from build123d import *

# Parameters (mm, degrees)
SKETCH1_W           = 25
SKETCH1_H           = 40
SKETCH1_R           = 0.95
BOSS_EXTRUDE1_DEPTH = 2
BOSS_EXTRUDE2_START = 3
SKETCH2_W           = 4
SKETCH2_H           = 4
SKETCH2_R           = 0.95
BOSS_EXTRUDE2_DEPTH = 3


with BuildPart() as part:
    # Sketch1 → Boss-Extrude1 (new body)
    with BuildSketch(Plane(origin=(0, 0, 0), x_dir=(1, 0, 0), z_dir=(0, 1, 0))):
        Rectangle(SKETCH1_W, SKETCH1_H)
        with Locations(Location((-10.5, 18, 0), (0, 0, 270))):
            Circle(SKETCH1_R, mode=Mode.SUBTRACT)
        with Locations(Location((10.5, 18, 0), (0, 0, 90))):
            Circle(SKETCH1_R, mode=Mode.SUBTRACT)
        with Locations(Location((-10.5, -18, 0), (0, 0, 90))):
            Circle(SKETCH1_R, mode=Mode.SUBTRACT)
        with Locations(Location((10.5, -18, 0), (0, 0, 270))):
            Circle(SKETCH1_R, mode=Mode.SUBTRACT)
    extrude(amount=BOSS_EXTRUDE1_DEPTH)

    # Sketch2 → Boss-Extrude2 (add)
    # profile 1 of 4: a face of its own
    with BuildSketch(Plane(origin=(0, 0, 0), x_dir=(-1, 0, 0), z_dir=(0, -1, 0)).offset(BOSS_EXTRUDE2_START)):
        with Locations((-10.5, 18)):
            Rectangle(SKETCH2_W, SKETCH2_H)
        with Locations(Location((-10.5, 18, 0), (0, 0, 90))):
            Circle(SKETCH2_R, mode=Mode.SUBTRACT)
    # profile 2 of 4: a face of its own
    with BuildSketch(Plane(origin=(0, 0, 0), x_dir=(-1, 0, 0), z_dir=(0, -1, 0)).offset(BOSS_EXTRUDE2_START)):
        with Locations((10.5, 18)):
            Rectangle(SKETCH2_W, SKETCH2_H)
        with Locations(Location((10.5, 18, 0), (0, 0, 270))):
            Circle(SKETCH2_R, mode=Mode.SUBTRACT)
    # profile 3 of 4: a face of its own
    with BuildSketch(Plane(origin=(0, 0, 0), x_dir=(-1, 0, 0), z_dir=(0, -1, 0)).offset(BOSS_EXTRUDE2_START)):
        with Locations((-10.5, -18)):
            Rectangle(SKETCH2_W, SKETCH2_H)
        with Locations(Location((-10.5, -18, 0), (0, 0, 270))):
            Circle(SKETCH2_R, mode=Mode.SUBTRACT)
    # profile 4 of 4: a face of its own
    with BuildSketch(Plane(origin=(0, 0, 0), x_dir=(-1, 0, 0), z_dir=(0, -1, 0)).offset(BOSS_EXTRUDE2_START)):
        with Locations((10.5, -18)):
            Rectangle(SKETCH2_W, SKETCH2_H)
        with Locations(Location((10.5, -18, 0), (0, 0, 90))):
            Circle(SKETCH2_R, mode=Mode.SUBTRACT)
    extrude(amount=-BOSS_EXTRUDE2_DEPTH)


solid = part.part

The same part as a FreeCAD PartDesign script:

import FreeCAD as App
import Part
import Sketcher


def add_polygon(sketch, points):
    """Adds a closed chain of lines whose ends are joined by coincident constraints."""
    first, n = sketch.GeometryCount, len(points)
    for a, b in zip(points, points[1:] + points[:1]):
        sketch.addGeometry(Part.LineSegment(App.Vector(*a, 0), App.Vector(*b, 0)), False)
    for i in range(n):
        sketch.addConstraint(Sketcher.Constraint("Coincident", first + i, 2, first + (i + 1) % n, 1))

doc = App.newDocument("Part")
params = doc.addObject("Spreadsheet::Sheet", "Params")
for row, (alias, value) in enumerate([
    ("sketch1_diameter", "1.9 mm"),
    ("sketch1_width", "25 mm"),
    ("sketch1_height", "40 mm"),
    ("pad1_length", "2 mm"),
    ("sketch2_diameter", "1.9 mm"),
    ("sketch2_width", "4 mm"),
    ("pad2_length", "3 mm"),
], start=1):
    params.set(f"A{row}", alias)
    params.set(f"B{row}", "=" + value)
    params.setAlias(f"B{row}", alias)

body = doc.addObject("PartDesign::Body", "Body")

# Sketch on XZ plane
sketch1 = body.newObject("Sketcher::SketchObject", "Sketch")
sketch1.AttachmentSupport = (doc.getObject("XZ_Plane"), [""])
sketch1.MapMode = "FlatFace"
add_polygon(sketch1, [(-12.5, -20), (-12.5, 20), (12.5, 20), (12.5, -20)])  # lines 0-3
sketch1.addGeometry(Part.Circle(App.Vector(-10.5, 18, 0), App.Vector(0, 0, 1), 0.9), False)  # 4
sketch1.addGeometry(Part.Circle(App.Vector(10.5, 18, 0), App.Vector(0, 0, 1), 0.9), False)  # 5
sketch1.addGeometry(Part.Circle(App.Vector(-10.5, -18, 0), App.Vector(0, 0, 1), 0.9), False)  # 6
sketch1.addGeometry(Part.Circle(App.Vector(10.5, -18, 0), App.Vector(0, 0, 1), 0.9), False)  # 7
sketch1.addConstraint(Sketcher.Constraint("Vertical", 0))
sketch1.addConstraint(Sketcher.Constraint("Horizontal", 1))
sketch1.addConstraint(Sketcher.Constraint("Vertical", 2))
sketch1.addConstraint(Sketcher.Constraint("Horizontal", 3))
sketch1.addConstraint(Sketcher.Constraint("Equal", 4, 5))
sketch1.addConstraint(Sketcher.Constraint("Equal", 5, 6))
sketch1.addConstraint(Sketcher.Constraint("Equal", 6, 7))
sketch1.addConstraint(Sketcher.Constraint("Symmetric", 5, 3, 6, 3, -1, 1))
sketch1.addConstraint(Sketcher.Constraint("Symmetric", 4, 3, 7, 3, -1, 1))
sketch1.addConstraint(Sketcher.Constraint("Symmetric", 0, 2, 2, 2, -1, 1))
sketch1.addConstraint(Sketcher.Constraint("Symmetric", 4, 3, 5, 3, -2))
sketch1.addConstraint(Sketcher.Constraint("Diameter", 4, 1.9))
sketch1.addConstraint(Sketcher.Constraint("DistanceX", 1, 1, 1, 2, 25.0))
sketch1.addConstraint(Sketcher.Constraint("DistanceY", 0, 1, 0, 2, 40.0))
sketch1.addConstraint(Sketcher.Constraint("DistanceY", -1, 1, 4, 3, 18.0))
sketch1.addConstraint(Sketcher.Constraint("DistanceX", 4, 3, 5, 3, 21.0))
sketch1.setExpression("Constraints[15]", "Params.sketch1_diameter")
sketch1.setExpression("Constraints[16]", "Params.sketch1_width")
sketch1.setExpression("Constraints[17]", "Params.sketch1_height")
pad1 = body.newObject("PartDesign::Pad", "Pad")
pad1.Profile = sketch1
pad1.setExpression("Length", "Params.pad1_length")
pad1.Reversed = True

# Sketch on XZ plane
sketch2 = body.newObject("Sketcher::SketchObject", "Sketch001")
sketch2.AttachmentSupport = (doc.getObject("XZ_Plane"), [""])
sketch2.MapMode = "FlatFace"
sketch2.AttachmentOffset = App.Placement(App.Vector(0, 0, 3), App.Rotation())
add_polygon(sketch2, [(12.5, -20), (12.5, -16), (8.5, -16), (8.5, -20)])  # lines 0-3
sketch2.addGeometry(Part.Circle(App.Vector(10.5, -18, 0), App.Vector(0, 0, 1), 0.9), False)  # 4
add_polygon(sketch2, [(-8.5, -20), (-8.5, -16), (-12.5, -16), (-12.5, -20)])  # lines 5-8
sketch2.addGeometry(Part.Circle(App.Vector(-10.5, -18, 0), App.Vector(0, 0, 1), 0.9), False)  # 9
add_polygon(sketch2, [(12.5, 16), (12.5, 20), (8.5, 20), (8.5, 16)])  # lines 10-13
sketch2.addGeometry(Part.Circle(App.Vector(10.5, 18, 0), App.Vector(0, 0, 1), 0.9), False)  # 14
add_polygon(sketch2, [(-8.5, 16), (-8.5, 20), (-12.5, 20), (-12.5, 16)])  # lines 15-18
sketch2.addGeometry(Part.Circle(App.Vector(-10.5, 18, 0), App.Vector(0, 0, 1), 0.9), False)  # 19
sketch2.addConstraint(Sketcher.Constraint("Vertical", 0))
sketch2.addConstraint(Sketcher.Constraint("Horizontal", 1))
sketch2.addConstraint(Sketcher.Constraint("Vertical", 2))
sketch2.addConstraint(Sketcher.Constraint("Horizontal", 3))
sketch2.addConstraint(Sketcher.Constraint("Vertical", 5))
sketch2.addConstraint(Sketcher.Constraint("Horizontal", 6))
sketch2.addConstraint(Sketcher.Constraint("Vertical", 7))
sketch2.addConstraint(Sketcher.Constraint("Horizontal", 8))
sketch2.addConstraint(Sketcher.Constraint("Vertical", 10))
sketch2.addConstraint(Sketcher.Constraint("Horizontal", 11))
sketch2.addConstraint(Sketcher.Constraint("Vertical", 12))
sketch2.addConstraint(Sketcher.Constraint("Horizontal", 13))
sketch2.addConstraint(Sketcher.Constraint("Vertical", 15))
sketch2.addConstraint(Sketcher.Constraint("Horizontal", 16))
sketch2.addConstraint(Sketcher.Constraint("Vertical", 17))
sketch2.addConstraint(Sketcher.Constraint("Horizontal", 18))
sketch2.addConstraint(Sketcher.Constraint("Equal", 4, 9))
sketch2.addConstraint(Sketcher.Constraint("Equal", 9, 14))
sketch2.addConstraint(Sketcher.Constraint("Equal", 14, 19))
sketch2.addConstraint(Sketcher.Constraint("Symmetric", 9, 3, 14, 3, -1, 1))
sketch2.addConstraint(Sketcher.Constraint("Symmetric", 4, 3, 19, 3, -1, 1))
sketch2.addConstraint(Sketcher.Constraint("Symmetric", 7, 2, 10, 2, -1, 1))
sketch2.addConstraint(Sketcher.Constraint("Symmetric", 5, 2, 12, 2, -1, 1))
sketch2.addConstraint(Sketcher.Constraint("Symmetric", 2, 2, 15, 2, -1, 1))
sketch2.addConstraint(Sketcher.Constraint("Symmetric", 0, 2, 17, 2, -1, 1))
sketch2.addConstraint(Sketcher.Constraint("Symmetric", 4, 3, 9, 3, -2))
sketch2.addConstraint(Sketcher.Constraint("Symmetric", 1, 2, 5, 2, -2))
sketch2.addConstraint(Sketcher.Constraint("Symmetric", 3, 2, 7, 2, -2))
sketch2.addConstraint(Sketcher.Constraint("Equal", 18, 0))
sketch2.addConstraint(Sketcher.Constraint("Diameter", 4, 1.9))
sketch2.addConstraint(Sketcher.Constraint("DistanceX", 1, 2, 1, 1, 4.0))
sketch2.addConstraint(Sketcher.Constraint("DistanceY", 4, 3, -1, 1, 18.0))
sketch2.addConstraint(Sketcher.Constraint("DistanceY", 0, 2, -1, 1, 16.0))
sketch2.addConstraint(Sketcher.Constraint("DistanceX", 9, 3, 4, 3, 21.0))
sketch2.addConstraint(Sketcher.Constraint("DistanceX", 4, 3, 0, 2, 2.0))
sketch2.setExpression("Constraints[45]", "Params.sketch2_diameter")
sketch2.setExpression("Constraints[46]", "Params.sketch2_width")
pad2 = body.newObject("PartDesign::Pad", "Pad001")
pad2.Profile = sketch2
pad2.setExpression("Length", "Params.pad2_length")
pad2.Reversed = True

doc.recompute()
